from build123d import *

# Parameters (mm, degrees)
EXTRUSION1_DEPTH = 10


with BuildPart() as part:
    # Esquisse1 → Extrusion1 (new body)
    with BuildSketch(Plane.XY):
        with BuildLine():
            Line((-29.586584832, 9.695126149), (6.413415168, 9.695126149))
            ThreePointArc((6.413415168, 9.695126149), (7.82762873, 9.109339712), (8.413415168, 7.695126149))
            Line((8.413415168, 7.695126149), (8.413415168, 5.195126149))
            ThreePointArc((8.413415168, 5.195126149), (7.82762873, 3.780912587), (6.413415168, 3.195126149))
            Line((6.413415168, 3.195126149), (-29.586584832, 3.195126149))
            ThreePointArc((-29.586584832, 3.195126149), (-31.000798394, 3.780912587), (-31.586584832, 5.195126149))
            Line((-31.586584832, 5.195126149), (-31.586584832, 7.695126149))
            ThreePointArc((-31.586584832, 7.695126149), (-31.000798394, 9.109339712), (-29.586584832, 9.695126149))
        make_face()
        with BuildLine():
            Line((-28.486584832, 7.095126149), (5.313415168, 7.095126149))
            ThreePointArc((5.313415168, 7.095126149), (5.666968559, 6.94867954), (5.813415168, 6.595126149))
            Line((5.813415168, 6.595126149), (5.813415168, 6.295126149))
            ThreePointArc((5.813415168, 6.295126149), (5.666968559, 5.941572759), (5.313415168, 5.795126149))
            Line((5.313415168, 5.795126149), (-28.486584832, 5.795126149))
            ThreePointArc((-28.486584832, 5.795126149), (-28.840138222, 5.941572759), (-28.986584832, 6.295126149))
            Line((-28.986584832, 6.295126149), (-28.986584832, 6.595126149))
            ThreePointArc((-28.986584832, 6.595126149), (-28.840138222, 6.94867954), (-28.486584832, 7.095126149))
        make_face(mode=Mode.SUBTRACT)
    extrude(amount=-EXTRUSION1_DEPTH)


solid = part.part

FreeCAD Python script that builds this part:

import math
import FreeCAD as App
import Part
import Sketcher

V = App.Vector

doc = App.newDocument("Part")
body = doc.addObject("PartDesign::Body", "Body")

sketch1 = doc.addObject("Sketcher::SketchObject", "Sketch")
body.addObject(sketch1)
sketch1.AttachmentSupport = (doc.XY_Plane, [""])
sketch1.MapMode = "FlatFace"
sketch1.addGeometry(Part.LineSegment(V(6.41, 9.7, 0), V(-29.59, 9.7, 0)), False)
sketch1.addGeometry(Part.ArcOfCircle(Part.Circle(V(-29.59, 7.7, 0), V(0, 0, 1), 2), math.radians(90), math.radians(180)), False)
sketch1.addGeometry(Part.LineSegment(V(-31.59, 7.7, 0), V(-31.59, 5.2, 0)), False)
sketch1.addGeometry(Part.ArcOfCircle(Part.Circle(V(-29.59, 5.2, 0), V(0, 0, 1), 2), math.radians(-180), math.radians(-90)), False)
sketch1.addGeometry(Part.LineSegment(V(-29.59, 3.2, 0), V(6.41, 3.2, 0)), False)
sketch1.addGeometry(Part.ArcOfCircle(Part.Circle(V(6.41, 5.2, 0), V(0, 0, 1), 2), math.radians(-90), math.radians(0)), False)
sketch1.addGeometry(Part.LineSegment(V(8.41, 5.2, 0), V(8.41, 7.7, 0)), False)
sketch1.addGeometry(Part.ArcOfCircle(Part.Circle(V(6.41, 7.7, 0), V(0, 0, 1), 2), math.radians(0), math.radians(90)), False)
sketch1.addGeometry(Part.LineSegment(V(-28.49, 7.1, 0), V(5.31, 7.1, 0)), False)
sketch1.addGeometry(Part.ArcOfCircle(Part.Circle(V(5.31, 6.6, 0), V(0, 0, 1), 0.5), math.radians(0), math.radians(90)), False)
sketch1.addGeometry(Part.LineSegment(V(5.81, 6.6, 0), V(5.81, 6.3, 0)), False)
sketch1.addGeometry(Part.ArcOfCircle(Part.Circle(V(5.31, 6.3, 0), V(0, 0, 1), 0.5), math.radians(-90), math.radians(0)), False)
sketch1.addGeometry(Part.LineSegment(V(5.31, 5.8, 0), V(-28.49, 5.8, 0)), False)
sketch1.addGeometry(Part.ArcOfCircle(Part.Circle(V(-28.49, 6.3, 0), V(0, 0, 1), 0.5), math.radians(-180), math.radians(-90)), False)
sketch1.addGeometry(Part.LineSegment(V(-28.99, 6.3, 0), V(-28.99, 6.6, 0)), False)
sketch1.addGeometry(Part.ArcOfCircle(Part.Circle(V(-28.49, 6.6, 0), V(0, 0, 1), 0.5), math.radians(90), math.radians(180)), False)
sketch1.addConstraint(Sketcher.Constraint("Tangent", 0, 2, 1, 1))
sketch1.addConstraint(Sketcher.Constraint("Tangent", 1, 2, 2, 1))
sketch1.addConstraint(Sketcher.Constraint("Tangent", 2, 2, 3, 1))
sketch1.addConstraint(Sketcher.Constraint("Tangent", 3, 2, 4, 1))
sketch1.addConstraint(Sketcher.Constraint("Tangent", 4, 2, 5, 1))
sketch1.addConstraint(Sketcher.Constraint("Tangent", 5, 2, 6, 1))
sketch1.addConstraint(Sketcher.Constraint("Tangent", 6, 2, 7, 1))
sketch1.addConstraint(Sketcher.Constraint("Tangent", 7, 2, 0, 1))
sketch1.addConstraint(Sketcher.Constraint("Tangent", 8, 2, 9, 2))
sketch1.addConstraint(Sketcher.Constraint("Tangent", 9, 1, 10, 1))
sketch1.addConstraint(Sketcher.Constraint("Tangent", 10, 2, 11, 2))
sketch1.addConstraint(Sketcher.Constraint("Tangent", 11, 1, 12, 1))
sketch1.addConstraint(Sketcher.Constraint("Tangent", 12, 2, 13, 2))
sketch1.addConstraint(Sketcher.Constraint("Tangent", 13, 1, 14, 1))
sketch1.addConstraint(Sketcher.Constraint("Tangent", 14, 2, 15, 2))
sketch1.addConstraint(Sketcher.Constraint("Tangent", 15, 1, 8, 1))
sketch1.addConstraint(Sketcher.Constraint("Horizontal", 0))
sketch1.addConstraint(Sketcher.Constraint("Vertical", 2))
sketch1.addConstraint(Sketcher.Constraint("Horizontal", 4))
sketch1.addConstraint(Sketcher.Constraint("Vertical", 6))
sketch1.addConstraint(Sketcher.Constraint("Horizontal", 8))
sketch1.addConstraint(Sketcher.Constraint("Vertical", 10))
sketch1.addConstraint(Sketcher.Constraint("Horizontal", 12))
sketch1.addConstraint(Sketcher.Constraint("Vertical", 14))
sketch1.addConstraint(Sketcher.Constraint("Equal", 1, 3))
sketch1.addConstraint(Sketcher.Constraint("Equal", 3, 5))
sketch1.addConstraint(Sketcher.Constraint("Equal", 5, 7))
sketch1.addConstraint(Sketcher.Constraint("Equal", 9, 11))
sketch1.addConstraint(Sketcher.Constraint("Equal", 11, 13))
sketch1.addConstraint(Sketcher.Constraint("Equal", 13, 15))
sketch1.addConstraint(Sketcher.Constraint("Radius", 1, 2.0))
sketch1.addConstraint(Sketcher.Constraint("Radius", 9, 0.5))
sketch1.addConstraint(Sketcher.Constraint("DistanceX", 0, 2, 0, 1, 36.0))
sketch1.addConstraint(Sketcher.Constraint("DistanceX", 8, 1, 8, 2, 33.8))
sketch1.addConstraint(Sketcher.Constraint("DistanceY", 2, 2, 2, 1, 2.5))
sketch1.addConstraint(Sketcher.Constraint("DistanceY", 10, 2, 10, 1, 0.3))
sketch1.addConstraint(Sketcher.Constraint("DistanceX", 9, 3, 7, 3, 1.1))
sketch1.addConstraint(Sketcher.Constraint("DistanceY", 9, 3, 7, 3, 1.1))
sketch1.addConstraint(Sketcher.Constraint("DistanceX", 1, 3, -1, 1, 29.586585))
sketch1.addConstraint(Sketcher.Constraint("DistanceY", -1, 1, 1, 3, 7.695126))
pad1 = doc.addObject("PartDesign::Pad", "Pad")
body.addObject(pad1)
pad1.Profile = sketch1
pad1.Length = 10
pad1.Reversed = True

doc.recompute()
